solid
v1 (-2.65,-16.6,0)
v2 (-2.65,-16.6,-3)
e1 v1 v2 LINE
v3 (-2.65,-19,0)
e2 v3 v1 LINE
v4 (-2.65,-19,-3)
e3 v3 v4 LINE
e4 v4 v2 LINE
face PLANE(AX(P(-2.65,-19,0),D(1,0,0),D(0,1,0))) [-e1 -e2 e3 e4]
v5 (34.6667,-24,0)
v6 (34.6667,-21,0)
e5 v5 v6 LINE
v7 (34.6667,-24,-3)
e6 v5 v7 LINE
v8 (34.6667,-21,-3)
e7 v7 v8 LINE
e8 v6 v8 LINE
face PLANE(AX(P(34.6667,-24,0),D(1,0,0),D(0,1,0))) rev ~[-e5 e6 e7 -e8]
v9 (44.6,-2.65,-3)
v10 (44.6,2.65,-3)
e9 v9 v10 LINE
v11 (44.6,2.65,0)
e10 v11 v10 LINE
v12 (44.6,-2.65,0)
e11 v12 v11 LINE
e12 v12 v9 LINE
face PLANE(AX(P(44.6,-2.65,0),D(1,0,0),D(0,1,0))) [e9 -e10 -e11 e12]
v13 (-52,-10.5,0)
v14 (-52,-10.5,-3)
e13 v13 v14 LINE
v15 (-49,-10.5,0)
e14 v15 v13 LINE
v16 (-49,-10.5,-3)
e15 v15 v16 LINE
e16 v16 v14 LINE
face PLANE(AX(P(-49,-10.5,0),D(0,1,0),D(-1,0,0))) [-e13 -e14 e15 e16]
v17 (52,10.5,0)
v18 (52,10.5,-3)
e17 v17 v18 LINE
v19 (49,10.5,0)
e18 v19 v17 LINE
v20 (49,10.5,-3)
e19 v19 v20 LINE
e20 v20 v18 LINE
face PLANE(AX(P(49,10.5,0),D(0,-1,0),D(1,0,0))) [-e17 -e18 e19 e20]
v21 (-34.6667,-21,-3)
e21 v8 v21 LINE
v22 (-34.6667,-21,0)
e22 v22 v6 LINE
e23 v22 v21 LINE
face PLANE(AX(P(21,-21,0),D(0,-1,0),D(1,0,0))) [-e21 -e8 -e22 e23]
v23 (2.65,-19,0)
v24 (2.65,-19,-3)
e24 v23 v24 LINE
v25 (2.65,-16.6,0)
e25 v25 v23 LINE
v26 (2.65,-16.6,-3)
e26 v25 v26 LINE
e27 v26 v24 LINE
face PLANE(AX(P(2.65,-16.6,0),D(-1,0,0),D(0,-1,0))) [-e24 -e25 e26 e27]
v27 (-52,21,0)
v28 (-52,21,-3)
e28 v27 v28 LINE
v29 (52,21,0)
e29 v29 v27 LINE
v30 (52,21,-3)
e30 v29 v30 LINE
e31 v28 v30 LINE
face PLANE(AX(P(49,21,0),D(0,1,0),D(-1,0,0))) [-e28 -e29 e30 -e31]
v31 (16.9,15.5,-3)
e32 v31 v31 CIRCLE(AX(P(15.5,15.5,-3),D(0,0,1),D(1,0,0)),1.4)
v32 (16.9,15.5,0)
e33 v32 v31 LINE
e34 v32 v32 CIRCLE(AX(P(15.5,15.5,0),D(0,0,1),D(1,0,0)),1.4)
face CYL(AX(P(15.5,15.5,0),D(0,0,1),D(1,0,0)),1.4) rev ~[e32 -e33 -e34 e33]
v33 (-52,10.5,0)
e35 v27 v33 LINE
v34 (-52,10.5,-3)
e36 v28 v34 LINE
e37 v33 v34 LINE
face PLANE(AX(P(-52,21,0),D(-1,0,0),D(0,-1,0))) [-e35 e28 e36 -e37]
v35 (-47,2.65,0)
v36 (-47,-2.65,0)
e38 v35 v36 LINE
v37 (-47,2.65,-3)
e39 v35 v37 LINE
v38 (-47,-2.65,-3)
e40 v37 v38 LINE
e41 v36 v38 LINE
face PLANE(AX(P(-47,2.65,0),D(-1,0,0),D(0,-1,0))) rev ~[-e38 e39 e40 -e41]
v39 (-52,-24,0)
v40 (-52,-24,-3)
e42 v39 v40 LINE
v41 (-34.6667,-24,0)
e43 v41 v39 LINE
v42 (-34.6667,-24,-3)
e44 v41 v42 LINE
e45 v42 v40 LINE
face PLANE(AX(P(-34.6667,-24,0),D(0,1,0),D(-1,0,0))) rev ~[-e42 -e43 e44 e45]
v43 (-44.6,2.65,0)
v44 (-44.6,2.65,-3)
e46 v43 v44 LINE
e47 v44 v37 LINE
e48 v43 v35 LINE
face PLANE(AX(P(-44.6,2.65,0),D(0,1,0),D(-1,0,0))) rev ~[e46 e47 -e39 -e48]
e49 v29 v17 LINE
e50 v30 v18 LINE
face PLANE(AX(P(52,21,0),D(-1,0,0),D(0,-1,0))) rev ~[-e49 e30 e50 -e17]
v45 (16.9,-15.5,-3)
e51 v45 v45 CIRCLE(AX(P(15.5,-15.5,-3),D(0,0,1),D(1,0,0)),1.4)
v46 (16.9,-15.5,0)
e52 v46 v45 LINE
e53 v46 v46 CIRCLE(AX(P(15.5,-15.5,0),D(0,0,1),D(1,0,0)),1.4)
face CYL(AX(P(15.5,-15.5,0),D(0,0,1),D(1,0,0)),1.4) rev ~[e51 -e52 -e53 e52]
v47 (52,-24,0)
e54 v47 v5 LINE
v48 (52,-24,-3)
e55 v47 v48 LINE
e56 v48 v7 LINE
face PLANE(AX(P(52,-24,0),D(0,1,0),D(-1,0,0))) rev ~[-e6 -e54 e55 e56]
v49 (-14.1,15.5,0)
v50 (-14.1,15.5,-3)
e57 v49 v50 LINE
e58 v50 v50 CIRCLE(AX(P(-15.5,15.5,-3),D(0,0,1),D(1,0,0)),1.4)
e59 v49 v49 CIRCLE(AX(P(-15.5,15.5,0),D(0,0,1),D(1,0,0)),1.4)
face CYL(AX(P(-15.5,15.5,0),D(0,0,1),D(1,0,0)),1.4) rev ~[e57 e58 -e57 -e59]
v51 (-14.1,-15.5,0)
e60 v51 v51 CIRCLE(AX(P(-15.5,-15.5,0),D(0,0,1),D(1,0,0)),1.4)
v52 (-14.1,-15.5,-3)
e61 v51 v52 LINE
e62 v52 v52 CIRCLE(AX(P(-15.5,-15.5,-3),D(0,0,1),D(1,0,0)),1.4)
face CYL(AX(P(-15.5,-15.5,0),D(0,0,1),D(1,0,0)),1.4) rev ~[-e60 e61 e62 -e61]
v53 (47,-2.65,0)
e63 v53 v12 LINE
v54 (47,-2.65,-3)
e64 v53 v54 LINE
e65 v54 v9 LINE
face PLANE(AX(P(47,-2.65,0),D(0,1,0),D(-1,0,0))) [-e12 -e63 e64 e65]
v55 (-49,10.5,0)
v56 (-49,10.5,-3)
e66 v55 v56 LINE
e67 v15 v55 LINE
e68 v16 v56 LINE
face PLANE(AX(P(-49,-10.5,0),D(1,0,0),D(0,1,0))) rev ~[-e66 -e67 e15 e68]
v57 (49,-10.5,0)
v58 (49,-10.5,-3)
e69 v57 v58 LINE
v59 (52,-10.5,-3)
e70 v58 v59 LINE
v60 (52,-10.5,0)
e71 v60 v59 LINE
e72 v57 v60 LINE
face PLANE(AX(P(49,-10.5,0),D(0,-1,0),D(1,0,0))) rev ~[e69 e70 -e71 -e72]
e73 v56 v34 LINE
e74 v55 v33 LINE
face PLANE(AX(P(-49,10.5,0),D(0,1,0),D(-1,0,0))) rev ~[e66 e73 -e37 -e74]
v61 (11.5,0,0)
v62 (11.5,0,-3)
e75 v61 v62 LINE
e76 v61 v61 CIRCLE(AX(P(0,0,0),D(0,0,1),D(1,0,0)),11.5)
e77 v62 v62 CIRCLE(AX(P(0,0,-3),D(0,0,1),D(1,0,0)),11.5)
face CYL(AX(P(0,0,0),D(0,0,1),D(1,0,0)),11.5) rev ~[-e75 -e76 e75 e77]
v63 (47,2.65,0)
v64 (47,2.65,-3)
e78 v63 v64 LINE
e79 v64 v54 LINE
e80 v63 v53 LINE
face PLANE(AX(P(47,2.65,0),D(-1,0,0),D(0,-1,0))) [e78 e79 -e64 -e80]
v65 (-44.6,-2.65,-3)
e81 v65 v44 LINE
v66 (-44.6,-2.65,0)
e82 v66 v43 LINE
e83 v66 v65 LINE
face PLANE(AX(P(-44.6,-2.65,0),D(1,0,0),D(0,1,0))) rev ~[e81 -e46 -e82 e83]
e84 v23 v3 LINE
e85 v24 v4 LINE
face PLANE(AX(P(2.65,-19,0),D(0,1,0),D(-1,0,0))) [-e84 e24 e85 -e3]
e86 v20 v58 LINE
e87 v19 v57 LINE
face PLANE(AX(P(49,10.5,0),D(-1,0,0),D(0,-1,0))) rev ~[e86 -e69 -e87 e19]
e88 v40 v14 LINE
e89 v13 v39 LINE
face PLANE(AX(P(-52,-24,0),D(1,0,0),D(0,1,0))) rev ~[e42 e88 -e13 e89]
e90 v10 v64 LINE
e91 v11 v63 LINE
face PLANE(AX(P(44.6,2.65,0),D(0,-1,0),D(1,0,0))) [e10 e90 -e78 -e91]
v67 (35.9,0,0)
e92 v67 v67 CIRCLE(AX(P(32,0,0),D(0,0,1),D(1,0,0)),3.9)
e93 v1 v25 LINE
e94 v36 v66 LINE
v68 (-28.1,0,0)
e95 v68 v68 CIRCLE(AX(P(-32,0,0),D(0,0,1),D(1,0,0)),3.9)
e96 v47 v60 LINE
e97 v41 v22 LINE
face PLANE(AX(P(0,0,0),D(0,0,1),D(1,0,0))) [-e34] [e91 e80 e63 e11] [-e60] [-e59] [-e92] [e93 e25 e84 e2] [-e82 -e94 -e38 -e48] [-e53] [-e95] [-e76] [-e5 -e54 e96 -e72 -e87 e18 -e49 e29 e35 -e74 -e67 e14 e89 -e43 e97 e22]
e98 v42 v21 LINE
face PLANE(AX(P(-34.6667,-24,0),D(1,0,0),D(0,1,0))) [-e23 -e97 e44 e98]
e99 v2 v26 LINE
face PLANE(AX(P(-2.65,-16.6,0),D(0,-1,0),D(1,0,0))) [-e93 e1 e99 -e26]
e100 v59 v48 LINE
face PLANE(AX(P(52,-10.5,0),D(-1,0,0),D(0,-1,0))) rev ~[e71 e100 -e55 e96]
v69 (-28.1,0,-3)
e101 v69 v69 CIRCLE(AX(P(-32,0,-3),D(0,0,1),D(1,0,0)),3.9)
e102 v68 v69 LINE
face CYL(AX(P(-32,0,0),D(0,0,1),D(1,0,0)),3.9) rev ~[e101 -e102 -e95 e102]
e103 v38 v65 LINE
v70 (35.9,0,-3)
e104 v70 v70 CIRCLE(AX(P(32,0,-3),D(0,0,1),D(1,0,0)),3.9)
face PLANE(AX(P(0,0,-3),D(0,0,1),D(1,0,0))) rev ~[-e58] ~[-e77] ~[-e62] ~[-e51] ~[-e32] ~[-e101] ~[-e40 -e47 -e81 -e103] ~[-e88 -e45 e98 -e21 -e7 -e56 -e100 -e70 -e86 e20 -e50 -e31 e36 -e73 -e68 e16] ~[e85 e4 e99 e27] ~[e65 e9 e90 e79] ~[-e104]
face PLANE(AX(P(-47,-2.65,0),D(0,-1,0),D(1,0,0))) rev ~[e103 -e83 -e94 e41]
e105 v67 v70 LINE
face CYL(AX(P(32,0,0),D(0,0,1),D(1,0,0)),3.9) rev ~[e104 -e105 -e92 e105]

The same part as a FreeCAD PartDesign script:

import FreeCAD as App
import Part
import Sketcher

doc = App.newDocument("Part")
body = doc.addObject("PartDesign::Body", "Body")

sketch1 = body.newObject("Sketcher::SketchObject", "Sketch")
sketch1.AttachmentSupport = (doc.getObject("XY_Plane"), [""])
sketch1.MapMode = "FlatFace"
sketch1.addGeometry([
    Part.LineSegment(App.Vector(49, -10.5, 0), App.Vector(49, 10.5, 0)),
    Part.LineSegment(App.Vector(49, 10.5, 0), App.Vector(52, 10.5, 0)),
    Part.LineSegment(App.Vector(52, 10.5, 0), App.Vector(52, 21, 0)),
    Part.LineSegment(App.Vector(52, 21, 0), App.Vector(-52, 21, 0)),
    Part.LineSegment(App.Vector(-52, 21, 0), App.Vector(-52, 10.5, 0)),
    Part.LineSegment(App.Vector(-52, 10.5, 0), App.Vector(-49, 10.5, 0)),
    Part.LineSegment(App.Vector(-49, 10.5, 0), App.Vector(-49, -10.5, 0)),
    Part.LineSegment(App.Vector(-49, -10.5, 0), App.Vector(-52, -10.5, 0)),
    Part.LineSegment(App.Vector(-52, -10.5, 0), App.Vector(-52, -24, 0)),
    Part.LineSegment(App.Vector(-52, -24, 0), App.Vector(-34.7, -24, 0)),
    Part.LineSegment(App.Vector(-34.7, -24, 0), App.Vector(-34.7, -21, 0)),
    Part.LineSegment(App.Vector(-34.7, -21, 0), App.Vector(34.7, -21, 0)),
    Part.LineSegment(App.Vector(34.7, -21, 0), App.Vector(34.7, -24, 0)),
    Part.LineSegment(App.Vector(34.7, -24, 0), App.Vector(52, -24, 0)),
    Part.LineSegment(App.Vector(52, -24, 0), App.Vector(52, -10.5, 0)),
    Part.LineSegment(App.Vector(52, -10.5, 0), App.Vector(49, -10.5, 0)),
    Part.Circle(App.Vector(-15.5, -15.5, 0), App.Vector(0, 0, 1), 1.4),
    Part.LineSegment(App.Vector(-2.6, -19, 0), App.Vector(-2.6, -16.6, 0)),
    Part.LineSegment(App.Vector(-2.6, -16.6, 0), App.Vector(2.6, -16.6, 0)),
    Part.LineSegment(App.Vector(2.6, -16.6, 0), App.Vector(2.6, -19, 0)),
    Part.LineSegment(App.Vector(2.6, -19, 0), App.Vector(-2.6, -19, 0)),
    Part.Circle(App.Vector(15.5, -15.5, 0), App.Vector(0, 0, 1), 1.4),
    Part.LineSegment(App.Vector(-47, 2.6, 0), App.Vector(-44.6, 2.6, 0)),
    Part.LineSegment(App.Vector(-44.6, 2.6, 0), App.Vector(-44.6, -2.6, 0)),
    Part.LineSegment(App.Vector(-44.6, -2.6, 0), App.Vector(-47, -2.6, 0)),
    Part.LineSegment(App.Vector(-47, -2.6, 0), App.Vector(-47, 2.6, 0)),
    Part.Circle(App.Vector(-32, 0, 0), App.Vector(0, 0, 1), 3.9),
    Part.Circle(App.Vector(-15.5, 15.5, 0), App.Vector(0, 0, 1), 1.4),
    Part.Circle(App.Vector(0, 0, 0), App.Vector(0, 0, 1), 11.5),
    Part.Circle(App.Vector(32, 0, 0), App.Vector(0, 0, 1), 3.9),
    Part.LineSegment(App.Vector(44.6, -2.6, 0), App.Vector(44.6, 2.6, 0)),
    Part.LineSegment(App.Vector(44.6, 2.6, 0), App.Vector(47, 2.6, 0)),
    Part.LineSegment(App.Vector(47, 2.6, 0), App.Vector(47, -2.6, 0)),
    Part.LineSegment(App.Vector(47, -2.6, 0), App.Vector(44.6, -2.6, 0)),
    Part.Circle(App.Vector(15.5, 15.5, 0), App.Vector(0, 0, 1), 1.4),
], False)
sketch1.addConstraint([
    Sketcher.Constraint("Coincident", 0, 2, 1, 1),
    Sketcher.Constraint("Coincident", 1, 2, 2, 1),
    Sketcher.Constraint("Coincident", 2, 2, 3, 1),
    Sketcher.Constraint("Coincident", 3, 2, 4, 1),
    Sketcher.Constraint("Coincident", 4, 2, 5, 1),
    Sketcher.Constraint("Coincident", 5, 2, 6, 1),
    Sketcher.Constraint("Coincident", 6, 2, 7, 1),
    Sketcher.Constraint("Coincident", 7, 2, 8, 1),
    Sketcher.Constraint("Coincident", 8, 2, 9, 1),
    Sketcher.Constraint("Coincident", 9, 2, 10, 1),
    Sketcher.Constraint("Coincident", 10, 2, 11, 1),
    Sketcher.Constraint("Coincident", 11, 2, 12, 1),
    Sketcher.Constraint("Coincident", 12, 2, 13, 1),
    Sketcher.Constraint("Coincident", 13, 2, 14, 1),
    Sketcher.Constraint("Coincident", 14, 2, 15, 1),
    Sketcher.Constraint("Coincident", 15, 2, 0, 1),
    Sketcher.Constraint("Coincident", 17, 2, 18, 1),
    Sketcher.Constraint("Coincident", 18, 2, 19, 1),
    Sketcher.Constraint("Coincident", 19, 2, 20, 1),
    Sketcher.Constraint("Coincident", 20, 2, 17, 1),
    Sketcher.Constraint("Coincident", 22, 2, 23, 1),
    Sketcher.Constraint("Coincident", 23, 2, 24, 1),
    Sketcher.Constraint("Coincident", 24, 2, 25, 1),
    Sketcher.Constraint("Coincident", 25, 2, 22, 1),
    Sketcher.Constraint("Coincident", 30, 2, 31, 1),
    Sketcher.Constraint("Coincident", 31, 2, 32, 1),
    Sketcher.Constraint("Coincident", 32, 2, 33, 1),
    Sketcher.Constraint("Coincident", 33, 2, 30, 1),
    Sketcher.Constraint("Vertical", 0),
    Sketcher.Constraint("Horizontal", 1),
    Sketcher.Constraint("Vertical", 2),
    Sketcher.Constraint("Horizontal", 3),
    Sketcher.Constraint("Vertical", 4),
    Sketcher.Constraint("Horizontal", 5),
    Sketcher.Constraint("Vertical", 6),
    Sketcher.Constraint("Horizontal", 7),
    Sketcher.Constraint("Vertical", 8),
    Sketcher.Constraint("Horizontal", 9),
    Sketcher.Constraint("Vertical", 10),
    Sketcher.Constraint("Horizontal", 11),
    Sketcher.Constraint("Vertical", 12),
    Sketcher.Constraint("Horizontal", 13),
    Sketcher.Constraint("Vertical", 14),
    Sketcher.Constraint("Horizontal", 15),
    Sketcher.Constraint("Vertical", 17),
    Sketcher.Constraint("Horizontal", 18),
    Sketcher.Constraint("Vertical", 19),
    Sketcher.Constraint("Horizontal", 20),
    Sketcher.Constraint("Horizontal", 22),
    Sketcher.Constraint("Vertical", 23),
    Sketcher.Constraint("Horizontal", 24),
    Sketcher.Constraint("Vertical", 25),
    Sketcher.Constraint("Vertical", 30),
    Sketcher.Constraint("Horizontal", 31),
    Sketcher.Constraint("Vertical", 32),
    Sketcher.Constraint("Horizontal", 33),
    Sketcher.Constraint("Coincident", 28, 3, -1, 1),
    Sketcher.Constraint("Equal", 16, 21),
    Sketcher.Constraint("Equal", 21, 27),
    Sketcher.Constraint("Equal", 26, 29),
    Sketcher.Constraint("Equal", 27, 34),
    Sketcher.Constraint("Symmetric", 21, 3, 27, 3, -1, 1),
    Sketcher.Constraint("Symmetric", 26, 3, 29, 3, -1, 1),
    Sketcher.Constraint("Symmetric", 16, 3, 34, 3, -1, 1),
    Sketcher.Constraint("Symmetric", 0, 2, 6, 2, -1, 1),
    Sketcher.Constraint("Symmetric", 4, 2, 14, 2, -1, 1),
    Sketcher.Constraint("Symmetric", 23, 2, 30, 2, -1, 1),
    Sketcher.Constraint("Symmetric", 25, 2, 32, 2, -1, 1),
    Sketcher.Constraint("Symmetric", 16, 3, 21, 3, -2),
    Sketcher.Constraint("Symmetric", 1, 2, 4, 2, -2),
    Sketcher.Constraint("Symmetric", 9, 2, 12, 2, -2),
    Sketcher.Constraint("PointOnObject", 26, 3, -1),
    Sketcher.Constraint("Horizontal", 25, 2, 30, 2),
    Sketcher.Constraint("Vertical", 4, 2, 7, 2),
    Sketcher.Constraint("Equal", 15, 10),
    Sketcher.Constraint("Equal", 33, 17),
    Sketcher.Constraint("Equal", 20, 23),
    Sketcher.Constraint("Diameter", 28, 23.0),
    Sketcher.Constraint("Diameter", 16, 2.8),
    Sketcher.Constraint("Diameter", 26, 7.8),
    Sketcher.Constraint("DistanceX", 1, 1, 1, 2, 3.0),
    Sketcher.Constraint("DistanceX", 3, 2, 3, 1, 104.0),
    Sketcher.Constraint("DistanceY", 0, 1, 0, 2, 21.0),
    Sketcher.Constraint("DistanceX", 18, 1, 18, 2, 5.3),
    Sketcher.Constraint("DistanceX", 22, 1, 22, 2, 2.4),
    Sketcher.Constraint("DistanceY", -1, 1, 2, 2, 21.0),
    Sketcher.Constraint("DistanceY", 10, 2, -1, 1, 21.0),
    Sketcher.Constraint("DistanceY", 0, 2, 34, 3, 5.0),
    Sketcher.Constraint("DistanceX", 7, 2, 24, 2, 5.0),
    Sketcher.Constraint("DistanceX", 22, 2, 26, 3, 12.6),
    Sketcher.Constraint("DistanceX", 11, 1, 11, 2, 69.3334),
    Sketcher.Constraint("DistanceY", 19, 2, -1, 1, 19.0),
    Sketcher.Constraint("DistanceX", 16, 3, 21, 3, 31.0),
    Sketcher.Constraint("DistanceX", 17, 2, -1, 1, 2.65),
])
pad1 = body.newObject("PartDesign::Pad", "Pad")
pad1.Profile = sketch1
pad1.Length = 3
pad1.Reversed = True

doc.recompute()
